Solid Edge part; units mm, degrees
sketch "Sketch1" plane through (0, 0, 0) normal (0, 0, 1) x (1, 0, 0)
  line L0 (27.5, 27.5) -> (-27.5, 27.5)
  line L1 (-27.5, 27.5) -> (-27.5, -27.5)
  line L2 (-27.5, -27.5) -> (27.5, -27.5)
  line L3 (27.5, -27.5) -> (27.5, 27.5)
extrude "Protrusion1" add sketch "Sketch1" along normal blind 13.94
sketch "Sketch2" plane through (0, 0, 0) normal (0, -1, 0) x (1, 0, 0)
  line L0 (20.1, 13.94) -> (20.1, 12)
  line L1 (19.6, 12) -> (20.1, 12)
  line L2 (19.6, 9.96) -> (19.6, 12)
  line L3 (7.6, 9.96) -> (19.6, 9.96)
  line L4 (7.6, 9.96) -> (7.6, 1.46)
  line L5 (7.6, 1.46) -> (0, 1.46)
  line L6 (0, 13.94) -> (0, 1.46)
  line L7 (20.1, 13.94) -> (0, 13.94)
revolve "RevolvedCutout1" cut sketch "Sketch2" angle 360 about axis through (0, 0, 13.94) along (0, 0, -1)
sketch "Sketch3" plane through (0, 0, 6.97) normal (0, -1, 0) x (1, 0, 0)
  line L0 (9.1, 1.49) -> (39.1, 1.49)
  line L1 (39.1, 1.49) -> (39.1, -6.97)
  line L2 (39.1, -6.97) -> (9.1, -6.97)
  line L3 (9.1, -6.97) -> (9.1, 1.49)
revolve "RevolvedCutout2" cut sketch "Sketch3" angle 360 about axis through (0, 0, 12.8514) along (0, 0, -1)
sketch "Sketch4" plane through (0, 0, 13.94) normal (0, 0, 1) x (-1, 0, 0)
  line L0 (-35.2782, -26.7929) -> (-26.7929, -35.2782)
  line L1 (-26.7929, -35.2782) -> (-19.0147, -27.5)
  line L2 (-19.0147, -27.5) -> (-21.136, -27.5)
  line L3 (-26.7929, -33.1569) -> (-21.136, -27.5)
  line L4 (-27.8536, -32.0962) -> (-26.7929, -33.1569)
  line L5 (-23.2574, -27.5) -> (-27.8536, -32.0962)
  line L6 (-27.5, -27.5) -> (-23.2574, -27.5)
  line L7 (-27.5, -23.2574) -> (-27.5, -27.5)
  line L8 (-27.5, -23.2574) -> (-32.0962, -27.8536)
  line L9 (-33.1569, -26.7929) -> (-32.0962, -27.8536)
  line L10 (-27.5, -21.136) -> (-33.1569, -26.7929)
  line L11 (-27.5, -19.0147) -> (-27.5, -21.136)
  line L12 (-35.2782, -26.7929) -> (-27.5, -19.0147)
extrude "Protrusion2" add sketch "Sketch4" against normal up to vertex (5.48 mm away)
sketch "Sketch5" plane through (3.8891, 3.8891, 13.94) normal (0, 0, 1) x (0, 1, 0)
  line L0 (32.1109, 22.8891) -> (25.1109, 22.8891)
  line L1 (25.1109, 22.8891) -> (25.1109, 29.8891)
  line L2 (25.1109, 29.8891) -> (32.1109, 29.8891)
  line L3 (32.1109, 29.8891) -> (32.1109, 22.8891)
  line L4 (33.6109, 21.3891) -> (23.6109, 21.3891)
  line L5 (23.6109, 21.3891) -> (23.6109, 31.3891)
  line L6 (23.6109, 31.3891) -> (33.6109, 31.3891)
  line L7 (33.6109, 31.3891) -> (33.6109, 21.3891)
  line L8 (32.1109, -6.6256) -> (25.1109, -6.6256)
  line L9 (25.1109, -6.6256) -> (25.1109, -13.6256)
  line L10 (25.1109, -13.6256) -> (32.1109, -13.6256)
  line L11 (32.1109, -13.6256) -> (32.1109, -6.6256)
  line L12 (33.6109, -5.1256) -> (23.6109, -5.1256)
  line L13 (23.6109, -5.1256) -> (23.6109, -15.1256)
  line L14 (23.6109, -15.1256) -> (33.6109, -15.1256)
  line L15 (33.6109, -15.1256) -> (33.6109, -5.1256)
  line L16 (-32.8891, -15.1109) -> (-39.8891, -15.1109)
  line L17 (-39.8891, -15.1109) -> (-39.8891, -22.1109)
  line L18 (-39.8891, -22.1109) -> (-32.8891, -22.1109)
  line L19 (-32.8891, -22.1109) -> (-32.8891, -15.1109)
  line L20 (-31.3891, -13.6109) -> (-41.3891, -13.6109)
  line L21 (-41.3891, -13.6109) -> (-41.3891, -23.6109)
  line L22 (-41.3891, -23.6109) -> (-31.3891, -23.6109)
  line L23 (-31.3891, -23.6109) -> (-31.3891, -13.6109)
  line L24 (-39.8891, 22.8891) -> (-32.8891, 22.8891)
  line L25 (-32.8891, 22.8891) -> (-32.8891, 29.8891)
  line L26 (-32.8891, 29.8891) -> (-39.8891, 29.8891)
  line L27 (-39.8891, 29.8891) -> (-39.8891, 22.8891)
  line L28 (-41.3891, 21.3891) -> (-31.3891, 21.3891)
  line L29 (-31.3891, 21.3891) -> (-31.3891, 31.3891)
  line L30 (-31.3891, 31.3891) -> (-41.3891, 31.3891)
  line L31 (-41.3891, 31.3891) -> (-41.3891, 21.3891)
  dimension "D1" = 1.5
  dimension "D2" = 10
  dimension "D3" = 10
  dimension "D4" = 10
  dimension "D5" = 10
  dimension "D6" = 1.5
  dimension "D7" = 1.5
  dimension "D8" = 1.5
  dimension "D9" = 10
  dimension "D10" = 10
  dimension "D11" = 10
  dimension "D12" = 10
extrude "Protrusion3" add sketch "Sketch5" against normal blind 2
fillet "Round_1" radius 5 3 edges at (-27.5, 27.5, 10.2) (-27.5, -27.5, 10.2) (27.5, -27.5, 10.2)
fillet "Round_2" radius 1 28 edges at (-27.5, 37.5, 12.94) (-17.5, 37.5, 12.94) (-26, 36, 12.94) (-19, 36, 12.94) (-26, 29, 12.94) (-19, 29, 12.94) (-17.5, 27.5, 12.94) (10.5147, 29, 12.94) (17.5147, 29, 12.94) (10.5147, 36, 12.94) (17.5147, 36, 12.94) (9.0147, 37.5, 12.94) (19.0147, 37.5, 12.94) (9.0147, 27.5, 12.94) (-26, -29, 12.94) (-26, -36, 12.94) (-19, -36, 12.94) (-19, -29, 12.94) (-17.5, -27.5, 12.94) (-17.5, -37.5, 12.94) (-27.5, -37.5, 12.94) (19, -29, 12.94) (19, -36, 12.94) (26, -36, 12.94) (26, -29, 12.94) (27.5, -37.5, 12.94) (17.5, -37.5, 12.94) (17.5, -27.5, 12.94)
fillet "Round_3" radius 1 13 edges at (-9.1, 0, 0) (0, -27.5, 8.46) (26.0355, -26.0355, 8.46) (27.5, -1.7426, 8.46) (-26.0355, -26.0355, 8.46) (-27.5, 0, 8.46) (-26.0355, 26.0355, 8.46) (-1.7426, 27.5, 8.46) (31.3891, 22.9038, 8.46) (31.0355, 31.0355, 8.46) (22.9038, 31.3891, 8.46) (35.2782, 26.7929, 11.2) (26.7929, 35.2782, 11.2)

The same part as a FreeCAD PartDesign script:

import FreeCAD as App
import Part
import Sketcher
Q = App.Units.Quantity


def edges_at(feature, points):
    """Names of the edges that pass closest to the given points."""
    edges = feature.Shape.Edges
    near = lambda p: min(range(len(edges)), key=lambda i: edges[i].distToShape(Part.Vertex(*p))[0])
    return sorted({f"Edge{near(p) + 1}" for p in points})

doc = App.newDocument("Part")
body = doc.addObject("PartDesign::Body", "Body")

# Sketch on XY plane
sketch1 = doc.addObject("Sketcher::SketchObject", "Sketch")
body.addObject(sketch1)
sketch1.AttachmentSupport = (doc.XY_Plane, [""])
sketch1.MapMode = "FlatFace"
sketch1.addGeometry([
    Part.LineSegment(App.Vector(27.5, -27.5, 0), App.Vector(27.5, 27.5, 0)),
    Part.LineSegment(App.Vector(27.5, 27.5, 0), App.Vector(-27.5, 27.5, 0)),
    Part.LineSegment(App.Vector(-27.5, 27.5, 0), App.Vector(-27.5, -27.5, 0)),
    Part.LineSegment(App.Vector(-27.5, -27.5, 0), App.Vector(27.5, -27.5, 0)),
], False)
sketch1.addConstraint([
    Sketcher.Constraint("Coincident", 0, 2, 1, 1),
    Sketcher.Constraint("Coincident", 1, 2, 2, 1),
    Sketcher.Constraint("Coincident", 2, 2, 3, 1),
    Sketcher.Constraint("Coincident", 3, 2, 0, 1),
    Sketcher.Constraint("Vertical", 0),
    Sketcher.Constraint("Horizontal", 1),
    Sketcher.Constraint("Vertical", 2),
    Sketcher.Constraint("Horizontal", 3),
    Sketcher.Constraint("Symmetric", 0, 2, 2, 2, -1, 1),
    Sketcher.Constraint("Equal", 3, 0),
    Sketcher.Constraint("DistanceX", 1, 2, 1, 1, Q("55 mm")),
])
pad1 = doc.addObject("PartDesign::Pad", "Pad")
body.addObject(pad1)
pad1.Profile = sketch1
pad1.Length = 13.94

# Sketch on XZ plane
sketch2 = doc.addObject("Sketcher::SketchObject", "Sketch001")
body.addObject(sketch2)
sketch2.AttachmentSupport = (doc.XZ_Plane, [""])
sketch2.MapMode = "FlatFace"
sketch2.addGeometry([
    Part.LineSegment(App.Vector(20.1, 12, 0), App.Vector(20.1, 13.94, 0)),  # 0
    Part.LineSegment(App.Vector(20.1, 13.94, 0), App.Vector(0, 13.94, 0)),  # 1
    Part.LineSegment(App.Vector(0, 13.94, 0), App.Vector(0, 1.46, 0)),  # 2
    Part.LineSegment(App.Vector(0, 1.46, 0), App.Vector(7.6, 1.46, 0)),  # 3
    Part.LineSegment(App.Vector(7.6, 1.46, 0), App.Vector(7.6, 9.96, 0)),  # 4
    Part.LineSegment(App.Vector(7.6, 9.96, 0), App.Vector(19.6, 9.96, 0)),  # 5
    Part.LineSegment(App.Vector(19.6, 9.96, 0), App.Vector(19.6, 12, 0)),  # 6
    Part.LineSegment(App.Vector(19.6, 12, 0), App.Vector(20.1, 12, 0)),  # 7
], False)
sketch2.addConstraint([
    Sketcher.Constraint("Coincident", 0, 2, 1, 1),
    Sketcher.Constraint("Coincident", 1, 2, 2, 1),
    Sketcher.Constraint("Coincident", 2, 2, 3, 1),
    Sketcher.Constraint("Coincident", 3, 2, 4, 1),
    Sketcher.Constraint("Coincident", 4, 2, 5, 1),
    Sketcher.Constraint("Coincident", 5, 2, 6, 1),
    Sketcher.Constraint("Coincident", 6, 2, 7, 1),
    Sketcher.Constraint("Coincident", 7, 2, 0, 1),
    Sketcher.Constraint("Vertical", 0),
    Sketcher.Constraint("Horizontal", 1),
    Sketcher.Constraint("Vertical", 2),
    Sketcher.Constraint("Horizontal", 3),
    Sketcher.Constraint("Vertical", 4),
    Sketcher.Constraint("Horizontal", 5),
    Sketcher.Constraint("Vertical", 6),
    Sketcher.Constraint("Horizontal", 7),
    Sketcher.Constraint("PointOnObject", 1, 2, -2),
    Sketcher.Constraint("DistanceX", 5, 1, 5, 2, Q("12 mm")),
    Sketcher.Constraint("DistanceX", 1, 2, 1, 1, Q("20.1 mm")),
    Sketcher.Constraint("DistanceX", 3, 1, 3, 2, Q("7.6 mm")),
    Sketcher.Constraint("DistanceY", 4, 1, 4, 2, Q("8.5 mm")),
    Sketcher.Constraint("DistanceY", -1, 1, 6, 2, Q("12 mm")),
    Sketcher.Constraint("DistanceY", 0, 1, 0, 2, Q("1.94 mm")),
    Sketcher.Constraint("DistanceY", 2, 2, 2, 1, Q("12.48 mm")),
])
groove = doc.addObject("PartDesign::Groove", "Groove")
body.addObject(groove)
groove.Profile = sketch2
groove.ReferenceAxis = (sketch2, ["V_Axis"])
groove.Angle = 360

# Sketch on XZ plane
sketch3 = doc.addObject("Sketcher::SketchObject", "Sketch002")
body.addObject(sketch3)
sketch3.AttachmentSupport = (doc.XZ_Plane, [""])
sketch3.MapMode = "FlatFace"
sketch3.addGeometry([
    Part.LineSegment(App.Vector(39.1, 8.46, 0), App.Vector(9.1, 8.46, 0)),
    Part.LineSegment(App.Vector(9.1, 8.46, 0), App.Vector(9.1, 0, 0)),
    Part.LineSegment(App.Vector(9.1, 0, 0), App.Vector(39.1, 0, 0)),
    Part.LineSegment(App.Vector(39.1, 0, 0), App.Vector(39.1, 8.46, 0)),
], False)
sketch3.addConstraint([
    Sketcher.Constraint("Coincident", 0, 2, 1, 1),
    Sketcher.Constraint("Coincident", 1, 2, 2, 1),
    Sketcher.Constraint("Coincident", 2, 2, 3, 1),
    Sketcher.Constraint("Coincident", 3, 2, 0, 1),
    Sketcher.Constraint("Horizontal", 0),
    Sketcher.Constraint("Vertical", 1),
    Sketcher.Constraint("Horizontal", 2),
    Sketcher.Constraint("Vertical", 3),
    Sketcher.Constraint("PointOnObject", 1, 2, -1),
    Sketcher.Constraint("DistanceX", 0, 2, 0, 1, Q("30 mm")),
    Sketcher.Constraint("DistanceY", 1, 2, 1, 1, Q("8.46 mm")),
    Sketcher.Constraint("DistanceX", -1, 1, 0, 2, Q("9.1 mm")),
])
groove2 = doc.addObject("PartDesign::Groove", "Groove001")
body.addObject(groove2)
groove2.Profile = sketch3
groove2.ReferenceAxis = (sketch3, ["V_Axis"])
groove2.Angle = 360

# Sketch on XY plane
sketch4 = doc.addObject("Sketcher::SketchObject", "Sketch003")
body.addObject(sketch4)
sketch4.AttachmentSupport = (doc.XY_Plane, [""])
sketch4.MapMode = "FlatFace"
sketch4.AttachmentOffset = App.Placement(App.Vector(0, 0, 13.94), App.Rotation())
sketch4.addGeometry([
    Part.LineSegment(App.Vector(27.5, 19.0147, 0), App.Vector(35.2782, 26.7929, 0)),  # 0
    Part.LineSegment(App.Vector(35.2782, 26.7929, 0), App.Vector(26.7929, 35.2782, 0)),  # 1
    Part.LineSegment(App.Vector(26.7929, 35.2782, 0), App.Vector(19.0147, 27.5, 0)),  # 2
    Part.LineSegment(App.Vector(19.0147, 27.5, 0), App.Vector(21.136, 27.5, 0)),  # 3
    Part.LineSegment(App.Vector(21.136, 27.5, 0), App.Vector(26.7929, 33.1569, 0)),  # 4
    Part.LineSegment(App.Vector(26.7929, 33.1569, 0), App.Vector(27.8536, 32.0962, 0)),  # 5
    Part.LineSegment(App.Vector(27.8536, 32.0962, 0), App.Vector(23.2574, 27.5, 0)),  # 6
    Part.LineSegment(App.Vector(23.2574, 27.5, 0), App.Vector(27.5, 27.5, 0)),  # 7
    Part.LineSegment(App.Vector(27.5, 27.5, 0), App.Vector(27.5, 23.2574, 0)),  # 8
    Part.LineSegment(App.Vector(27.5, 23.2574, 0), App.Vector(32.0962, 27.8536, 0)),  # 9
    Part.LineSegment(App.Vector(32.0962, 27.8536, 0), App.Vector(33.1569, 26.7929, 0)),  # 10
    Part.LineSegment(App.Vector(33.1569, 26.7929, 0), App.Vector(27.5, 21.136, 0)),  # 11
    Part.LineSegment(App.Vector(27.5, 21.136, 0), App.Vector(27.5, 19.0147, 0)),  # 12
], False)
sketch4.addConstraint([
    Sketcher.Constraint("Coincident", 0, 2, 1, 1),
    Sketcher.Constraint("Coincident", 1, 2, 2, 1),
    Sketcher.Constraint("Coincident", 2, 2, 3, 1),
    Sketcher.Constraint("Coincident", 3, 2, 4, 1),
    Sketcher.Constraint("Coincident", 4, 2, 5, 1),
    Sketcher.Constraint("Coincident", 5, 2, 6, 1),
    Sketcher.Constraint("Coincident", 6, 2, 7, 1),
    Sketcher.Constraint("Coincident", 7, 2, 8, 1),
    Sketcher.Constraint("Coincident", 8, 2, 9, 1),
    Sketcher.Constraint("Coincident", 9, 2, 10, 1),
    Sketcher.Constraint("Coincident", 10, 2, 11, 1),
    Sketcher.Constraint("Coincident", 11, 2, 12, 1),
    Sketcher.Constraint("Coincident", 12, 2, 0, 1),
    Sketcher.Constraint("Horizontal", 3),
    Sketcher.Constraint("Horizontal", 7),
    Sketcher.Constraint("Vertical", 8),
    Sketcher.Constraint("Vertical", 12),
    Sketcher.Constraint("Perpendicular", 0, 1),
    Sketcher.Constraint("Perpendicular", 1, 2),
    Sketcher.Constraint("Parallel", 2, 4),
    Sketcher.Constraint("Perpendicular", 4, 5),
    Sketcher.Constraint("Perpendicular", 5, 6),
    Sketcher.Constraint("Parallel", 6, 9),
    Sketcher.Constraint("Perpendicular", 9, 10),
    Sketcher.Constraint("Perpendicular", 10, 11),
    Sketcher.Constraint("Horizontal", 3, 2, 6, 2),
    Sketcher.Constraint("Horizontal", 0, 2, 10, 2),
    Sketcher.Constraint("Vertical", 1, 2, 4, 2),
    Sketcher.Constraint("Vertical", 8, 2, 11, 2),
    Sketcher.Constraint("Equal", 7, 8),
    Sketcher.Constraint("Equal", 3, 12),
    Sketcher.Constraint("Equal", 0, 2),
    Sketcher.Constraint("Equal", 6, 9),
    Sketcher.Constraint("Distance", 0, Q("11 mm")),
    Sketcher.Constraint("Distance", 1, Q("12 mm")),
    Sketcher.Constraint("Distance", 4, Q("8 mm")),
    Sketcher.Constraint("Distance", 5, Q("1.5 mm")),
    Sketcher.Constraint("DistanceY", -1, 1, 2, 2, Q("27.5 mm")),
    Sketcher.Constraint("DistanceX", -1, 1, 7, 2, Q("27.5 mm")),
])
pad2 = doc.addObject("PartDesign::Pad", "Pad001")
body.addObject(pad2)
pad2.Profile = sketch4
pad2.Length = 5.48
pad2.Reversed = True

# Sketch on XY plane
sketch5 = doc.addObject("Sketcher::SketchObject", "Sketch004")
body.addObject(sketch5)
sketch5.AttachmentSupport = (doc.XY_Plane, [""])
sketch5.MapMode = "FlatFace"
sketch5.AttachmentOffset = App.Placement(App.Vector(0, 0, 13.94), App.Rotation())
sketch5.addGeometry([
    Part.LineSegment(App.Vector(-17.5, 27.5, 0), App.Vector(-17.5, 37.5, 0)),  # 0
    Part.LineSegment(App.Vector(-17.5, 37.5, 0), App.Vector(-27.5, 37.5, 0)),  # 1
    Part.LineSegment(App.Vector(-27.5, 37.5, 0), App.Vector(-27.5, 27.5, 0)),  # 2
    Part.LineSegment(App.Vector(-27.5, 27.5, 0), App.Vector(-17.5, 27.5, 0)),  # 3
    Part.LineSegment(App.Vector(-26, 36, 0), App.Vector(-19, 36, 0)),  # 4
    Part.LineSegment(App.Vector(-19, 36, 0), App.Vector(-19, 29, 0)),  # 5
    Part.LineSegment(App.Vector(-19, 29, 0), App.Vector(-26, 29, 0)),  # 6
    Part.LineSegment(App.Vector(-26, 29, 0), App.Vector(-26, 36, 0)),  # 7
    Part.LineSegment(App.Vector(19.0147, 37.5, 0), App.Vector(9.0147, 37.5, 0)),  # 8
    Part.LineSegment(App.Vector(9.0147, 37.5, 0), App.Vector(9.0147, 27.5, 0)),  # 9
    Part.LineSegment(App.Vector(9.0147, 27.5, 0), App.Vector(19.0147, 27.5, 0)),  # 10
    Part.LineSegment(App.Vector(19.0147, 27.5, 0), App.Vector(19.0147, 37.5, 0)),  # 11
    Part.LineSegment(App.Vector(10.5147, 29, 0), App.Vector(10.5147, 36, 0)),  # 12
    Part.LineSegment(App.Vector(10.5147, 36, 0), App.Vector(17.5147, 36, 0)),  # 13
    Part.LineSegment(App.Vector(17.5147, 36, 0), App.Vector(17.5147, 29, 0)),  # 14
    Part.LineSegment(App.Vector(17.5147, 29, 0), App.Vector(10.5147, 29, 0)),  # 15
    Part.LineSegment(App.Vector(27.5, -27.5, 0), App.Vector(17.5, -27.5, 0)),  # 16
    Part.LineSegment(App.Vector(17.5, -27.5, 0), App.Vector(17.5, -37.5, 0)),  # 17
    Part.LineSegment(App.Vector(17.5, -37.5, 0), App.Vector(27.5, -37.5, 0)),  # 18
    Part.LineSegment(App.Vector(27.5, -37.5, 0), App.Vector(27.5, -27.5, 0)),  # 19
    Part.LineSegment(App.Vector(19, -36, 0), App.Vector(19, -29, 0)),  # 20
    Part.LineSegment(App.Vector(19, -29, 0), App.Vector(26, -29, 0)),  # 21
    Part.LineSegment(App.Vector(26, -29, 0), App.Vector(26, -36, 0)),  # 22
    Part.LineSegment(App.Vector(26, -36, 0), App.Vector(19, -36, 0)),  # 23
    Part.LineSegment(App.Vector(-27.5, -37.5, 0), App.Vector(-17.5, -37.5, 0)),  # 24
    Part.LineSegment(App.Vector(-17.5, -37.5, 0), App.Vector(-17.5, -27.5, 0)),  # 25
    Part.LineSegment(App.Vector(-17.5, -27.5, 0), App.Vector(-27.5, -27.5, 0)),  # 26
    Part.LineSegment(App.Vector(-27.5, -27.5, 0), App.Vector(-27.5, -37.5, 0)),  # 27
    Part.LineSegment(App.Vector(-19, -29, 0), App.Vector(-19, -36, 0)),  # 28
    Part.LineSegment(App.Vector(-19, -36, 0), App.Vector(-26, -36, 0)),  # 29
    Part.LineSegment(App.Vector(-26, -36, 0), App.Vector(-26, -29, 0)),  # 30
    Part.LineSegment(App.Vector(-26, -29, 0), App.Vector(-19, -29, 0)),  # 31
], False)
sketch5.addConstraint([
    Sketcher.Constraint("Coincident", 0, 2, 1, 1),
    Sketcher.Constraint("Coincident", 1, 2, 2, 1),
    Sketcher.Constraint("Coincident", 2, 2, 3, 1),
    Sketcher.Constraint("Coincident", 3, 2, 0, 1),
    Sketcher.Constraint("Coincident", 4, 2, 5, 1),
    Sketcher.Constraint("Coincident", 5, 2, 6, 1),
    Sketcher.Constraint("Coincident", 6, 2, 7, 1),
    Sketcher.Constraint("Coincident", 7, 2, 4, 1),
    Sketcher.Constraint("Coincident", 8, 2, 9, 1),
    Sketcher.Constraint("Coincident", 9, 2, 10, 1),
    Sketcher.Constraint("Coincident", 10, 2, 11, 1),
    Sketcher.Constraint("Coincident", 11, 2, 8, 1),
    Sketcher.Constraint("Coincident", 12, 2, 13, 1),
    Sketcher.Constraint("Coincident", 13, 2, 14, 1),
    Sketcher.Constraint("Coincident", 14, 2, 15, 1),
    Sketcher.Constraint("Coincident", 15, 2, 12, 1),
    Sketcher.Constraint("Coincident", 16, 2, 17, 1),
    Sketcher.Constraint("Coincident", 17, 2, 18, 1),
    Sketcher.Constraint("Coincident", 18, 2, 19, 1),
    Sketcher.Constraint("Coincident", 19, 2, 16, 1),
    Sketcher.Constraint("Coincident", 20, 2, 21, 1),
    Sketcher.Constraint("Coincident", 21, 2, 22, 1),
    Sketcher.Constraint("Coincident", 22, 2, 23, 1),
    Sketcher.Constraint("Coincident", 23, 2, 20, 1),
    Sketcher.Constraint("Coincident", 24, 2, 25, 1),
    Sketcher.Constraint("Coincident", 25, 2, 26, 1),
    Sketcher.Constraint("Coincident", 26, 2, 27, 1),
    Sketcher.Constraint("Coincident", 27, 2, 24, 1),
    Sketcher.Constraint("Coincident", 28, 2, 29, 1),
    Sketcher.Constraint("Coincident", 29, 2, 30, 1),
    Sketcher.Constraint("Coincident", 30, 2, 31, 1),
    Sketcher.Constraint("Coincident", 31, 2, 28, 1),
    Sketcher.Constraint("Vertical", 0),
    Sketcher.Constraint("Horizontal", 1),
    Sketcher.Constraint("Vertical", 2),
    Sketcher.Constraint("Horizontal", 3),
    Sketcher.Constraint("Horizontal", 4),
    Sketcher.Constraint("Vertical", 5),
    Sketcher.Constraint("Horizontal", 6),
    Sketcher.Constraint("Vertical", 7),
    Sketcher.Constraint("Horizontal", 8),
    Sketcher.Constraint("Vertical", 9),
    Sketcher.Constraint("Horizontal", 10),
    Sketcher.Constraint("Vertical", 11),
    Sketcher.Constraint("Vertical", 12),
    Sketcher.Constraint("Horizontal", 13),
    Sketcher.Constraint("Vertical", 14),
    Sketcher.Constraint("Horizontal", 15),
    Sketcher.Constraint("Horizontal", 16),
    Sketcher.Constraint("Vertical", 17),
    Sketcher.Constraint("Horizontal", 18),
    Sketcher.Constraint("Vertical", 19),
    Sketcher.Constraint("Vertical", 20),
    Sketcher.Constraint("Horizontal", 21),
    Sketcher.Constraint("Vertical", 22),
    Sketcher.Constraint("Horizontal", 23),
    Sketcher.Constraint("Horizontal", 24),
    Sketcher.Constraint("Vertical", 25),
    Sketcher.Constraint("Horizontal", 26),
    Sketcher.Constraint("Vertical", 27),
    Sketcher.Constraint("Vertical", 28),
    Sketcher.Constraint("Horizontal", 29),
    Sketcher.Constraint("Vertical", 30),
    Sketcher.Constraint("Horizontal", 31),
    Sketcher.Constraint("Symmetric", 3, 2, 16, 2, -1, 1),
    Sketcher.Constraint("Symmetric", 1, 2, 18, 2, -1, 1),
    Sketcher.Constraint("Symmetric", 5, 2, 20, 2, -1, 1),
    Sketcher.Constraint("Symmetric", 7, 2, 22, 2, -1, 1),
    Sketcher.Constraint("Symmetric", 17, 2, 24, 2, -2),
    Sketcher.Constraint("Symmetric", 19, 2, 26, 2, -2),
    Sketcher.Constraint("Symmetric", 23, 2, 28, 2, -2),
    Sketcher.Constraint("Symmetric", 21, 2, 30, 2, -2),
    Sketcher.Constraint("Horizontal", 1, 2, 8, 2),
    Sketcher.Constraint("Horizontal", 3, 2, 9, 2),
    Sketcher.Constraint("Horizontal", 7, 2, 12, 2),
    Sketcher.Constraint("Horizontal", 6, 2, 14, 2),
    Sketcher.Constraint("Equal", 3, 8),
    Sketcher.Constraint("Equal", 6, 13),
    Sketcher.Constraint("Equal", 26, 0),
    Sketcher.Constraint("Equal", 31, 5),
    Sketcher.Constraint("DistanceX", 1, 2, 1, 1, Q("10 mm")),
    Sketcher.Constraint("DistanceX", 4, 1, 4, 2, Q("7 mm")),
    Sketcher.Constraint("DistanceX", 4, 2, -1, 1, Q("19 mm")),
    Sketcher.Constraint("DistanceY", -1, 1, 4, 2, Q("36 mm")),
    Sketcher.Constraint("DistanceY", 16, 2, 10, 2, Q("55 mm")),
    Sketcher.Constraint("DistanceX", 24, 2, 17, 2, Q("35 mm")),
    Sketcher.Constraint("DistanceX", 8, 2, 12, 2, Q("1.5 mm")),
    Sketcher.Constraint("DistanceX", -1, 1, 8, 2, Q("9.0147 mm")),
])
pad3 = doc.addObject("PartDesign::Pad", "Pad002")
body.addObject(pad3)
pad3.Profile = sketch5
pad3.Length = 2
pad3.Reversed = True
doc.recompute()

fillet = doc.addObject("PartDesign::Fillet", "Fillet")
body.addObject(fillet)
fillet.Base = (pad3, edges_at(pad3, [(-27.5, 27.5, 10.2), (-27.5, -27.5, 10.2), (27.5, -27.5, 10.2)]))
fillet.Radius = 5
doc.recompute()

fillet2 = doc.addObject("PartDesign::Fillet", "Fillet001")
body.addObject(fillet2)
fillet2.Base = (fillet, edges_at(fillet, [
    (-27.5, 37.5, 12.94),
    (-17.5, 37.5, 12.94),
    (-26, 36, 12.94),
    (-19, 36, 12.94),
    (-26, 29, 12.94),
    (-19, 29, 12.94),
    (-17.5, 27.5, 12.94),
    (10.515, 29, 12.94),
    (17.515, 29, 12.94),
    (10.515, 36, 12.94),
    (17.515, 36, 12.94),
    (9.015, 37.5, 12.94),
    (19.015, 37.5, 12.94),
    (9.015, 27.5, 12.94),
    (-26, -29, 12.94),
    (-26, -36, 12.94),
    (-19, -36, 12.94),
    (-19, -29, 12.94),
    (-17.5, -27.5, 12.94),
    (-17.5, -37.5, 12.94),
    (-27.5, -37.5, 12.94),
    (19, -29, 12.94),
    (19, -36, 12.94),
    (26, -36, 12.94),
    (26, -29, 12.94),
    (27.5, -37.5, 12.94),
    (17.5, -37.5, 12.94),
    (17.5, -27.5, 12.94),
]))
fillet2.Radius = 1
doc.recompute()

fillet3 = doc.addObject("PartDesign::Fillet", "Fillet002")
body.addObject(fillet3)
fillet3.Base = (fillet2, edges_at(fillet2, [
    (-9.1, 0, 0),
    (0, -27.5, 8.46),
    (26.035, -26.035, 8.46),
    (27.5, -1.743, 8.46),
    (-26.035, -26.035, 8.46),
    (-27.5, 0, 8.46),
    (-26.035, 26.035, 8.46),
    (-1.743, 27.5, 8.46),
    (31.389, 22.904, 8.46),
    (31.035, 31.035, 8.46),
    (22.904, 31.389, 8.46),
    (35.278, 26.793, 11.2),
    (26.793, 35.278, 11.2),
]))
fillet3.Radius = 1

doc.recompute()
